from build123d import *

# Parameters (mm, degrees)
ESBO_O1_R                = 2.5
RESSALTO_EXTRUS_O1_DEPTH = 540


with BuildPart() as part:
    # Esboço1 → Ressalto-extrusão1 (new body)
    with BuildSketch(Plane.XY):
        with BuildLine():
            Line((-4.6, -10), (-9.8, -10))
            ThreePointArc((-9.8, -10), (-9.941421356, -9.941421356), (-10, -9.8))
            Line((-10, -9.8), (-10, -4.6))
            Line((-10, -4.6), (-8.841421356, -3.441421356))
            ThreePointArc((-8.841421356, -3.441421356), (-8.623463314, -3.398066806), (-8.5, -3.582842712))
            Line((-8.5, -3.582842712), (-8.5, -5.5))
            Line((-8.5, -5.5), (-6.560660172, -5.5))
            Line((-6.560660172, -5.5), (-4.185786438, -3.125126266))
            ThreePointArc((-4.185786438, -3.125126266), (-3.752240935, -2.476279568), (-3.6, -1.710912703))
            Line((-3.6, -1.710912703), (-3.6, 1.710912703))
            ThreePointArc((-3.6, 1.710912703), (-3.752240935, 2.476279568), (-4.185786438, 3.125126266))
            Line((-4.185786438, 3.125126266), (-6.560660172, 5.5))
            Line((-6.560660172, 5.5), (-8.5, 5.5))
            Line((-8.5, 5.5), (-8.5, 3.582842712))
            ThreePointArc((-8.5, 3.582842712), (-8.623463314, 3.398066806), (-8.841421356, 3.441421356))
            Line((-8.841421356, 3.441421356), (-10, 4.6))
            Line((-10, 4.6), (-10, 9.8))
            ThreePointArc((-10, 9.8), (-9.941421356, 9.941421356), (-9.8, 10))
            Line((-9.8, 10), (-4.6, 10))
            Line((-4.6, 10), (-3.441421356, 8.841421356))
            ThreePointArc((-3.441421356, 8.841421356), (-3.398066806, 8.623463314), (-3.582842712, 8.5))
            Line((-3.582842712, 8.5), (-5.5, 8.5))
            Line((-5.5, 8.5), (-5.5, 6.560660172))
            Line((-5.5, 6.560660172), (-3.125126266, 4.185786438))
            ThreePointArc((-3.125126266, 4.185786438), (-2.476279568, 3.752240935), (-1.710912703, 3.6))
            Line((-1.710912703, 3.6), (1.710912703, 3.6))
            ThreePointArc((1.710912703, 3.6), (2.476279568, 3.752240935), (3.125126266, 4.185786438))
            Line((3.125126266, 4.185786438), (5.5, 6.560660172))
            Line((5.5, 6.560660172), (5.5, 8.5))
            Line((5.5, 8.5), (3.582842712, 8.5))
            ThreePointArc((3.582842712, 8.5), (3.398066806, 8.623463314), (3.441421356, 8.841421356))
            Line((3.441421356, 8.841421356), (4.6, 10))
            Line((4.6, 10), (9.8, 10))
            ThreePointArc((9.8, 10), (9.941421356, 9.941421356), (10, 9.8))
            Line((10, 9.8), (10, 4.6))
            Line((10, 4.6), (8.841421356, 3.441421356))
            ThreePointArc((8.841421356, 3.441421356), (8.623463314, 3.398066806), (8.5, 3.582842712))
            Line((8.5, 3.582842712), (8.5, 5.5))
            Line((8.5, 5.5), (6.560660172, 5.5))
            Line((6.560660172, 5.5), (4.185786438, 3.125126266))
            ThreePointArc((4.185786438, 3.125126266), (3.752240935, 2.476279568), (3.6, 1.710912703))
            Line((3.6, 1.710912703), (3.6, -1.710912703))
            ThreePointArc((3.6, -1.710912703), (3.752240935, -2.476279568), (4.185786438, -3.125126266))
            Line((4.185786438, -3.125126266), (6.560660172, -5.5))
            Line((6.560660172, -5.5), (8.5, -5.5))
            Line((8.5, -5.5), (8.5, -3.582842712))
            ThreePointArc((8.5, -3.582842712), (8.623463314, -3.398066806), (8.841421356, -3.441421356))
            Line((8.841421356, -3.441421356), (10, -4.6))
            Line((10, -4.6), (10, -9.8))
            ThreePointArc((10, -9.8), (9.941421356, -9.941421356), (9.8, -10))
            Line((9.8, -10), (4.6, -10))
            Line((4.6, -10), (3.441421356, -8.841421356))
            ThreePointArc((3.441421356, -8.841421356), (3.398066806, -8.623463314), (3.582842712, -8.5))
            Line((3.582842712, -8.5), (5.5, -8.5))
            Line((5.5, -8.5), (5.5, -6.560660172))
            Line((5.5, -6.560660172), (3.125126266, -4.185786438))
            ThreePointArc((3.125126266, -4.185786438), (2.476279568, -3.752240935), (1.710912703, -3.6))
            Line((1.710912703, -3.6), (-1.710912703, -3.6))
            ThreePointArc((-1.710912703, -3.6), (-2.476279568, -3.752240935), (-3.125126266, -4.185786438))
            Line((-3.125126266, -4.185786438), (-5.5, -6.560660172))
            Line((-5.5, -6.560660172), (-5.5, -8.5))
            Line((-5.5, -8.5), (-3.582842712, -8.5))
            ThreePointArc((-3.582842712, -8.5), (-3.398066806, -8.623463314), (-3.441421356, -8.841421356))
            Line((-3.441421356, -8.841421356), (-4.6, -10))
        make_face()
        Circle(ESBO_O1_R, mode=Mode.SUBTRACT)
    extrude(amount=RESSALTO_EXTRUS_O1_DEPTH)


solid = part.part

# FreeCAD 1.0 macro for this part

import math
import FreeCAD as App
import Part
import Sketcher
from FreeCAD import Vector
Q = App.Units.Quantity

doc = App.newDocument("Part")
body = doc.addObject("PartDesign::Body", "Body")

# Sketch on XY plane
sketch1 = body.newObject("Sketcher::SketchObject", "Sketch")
sketch1.AttachmentSupport = (doc.getObject("XY_Plane"), [""])
sketch1.MapMode = "FlatFace"
sketch1.addGeometry(Part.LineSegment(Vector(-9.8, -10, 0), Vector(-4.6, -10, 0)), False)
sketch1.addGeometry(Part.LineSegment(Vector(-4.6, -10, 0), Vector(-3.44, -8.84, 0)), False)
sketch1.addGeometry(Part.ArcOfCircle(Part.Circle(Vector(-3.58, -8.7, 0), Vector(0, 0, 1), 0.2), math.radians(-45), math.radians(90)), False)
sketch1.addGeometry(Part.LineSegment(Vector(-3.58, -8.5, 0), Vector(-5.5, -8.5, 0)), False)
sketch1.addGeometry(Part.LineSegment(Vector(-5.5, -8.5, 0), Vector(-5.5, -6.56, 0)), False)
sketch1.addGeometry(Part.LineSegment(Vector(-5.5, -6.56, 0), Vector(-3.13, -4.19, 0)), False)
sketch1.addGeometry(Part.ArcOfCircle(Part.Circle(Vector(-1.71, -5.6, 0), Vector(0, 0, 1), 2), math.radians(90), math.radians(135)), False)
sketch1.addGeometry(Part.LineSegment(Vector(-1.71, -3.6, 0), Vector(1.71, -3.6, 0)), False)
sketch1.addGeometry(Part.ArcOfCircle(Part.Circle(Vector(1.71, -5.6, 0), Vector(0, 0, 1), 2), math.radians(45), math.radians(90)), False)
sketch1.addGeometry(Part.LineSegment(Vector(3.13, -4.19, 0), Vector(5.5, -6.56, 0)), False)
sketch1.addGeometry(Part.LineSegment(Vector(5.5, -6.56, 0), Vector(5.5, -8.5, 0)), False)
sketch1.addGeometry(Part.LineSegment(Vector(5.5, -8.5, 0), Vector(3.58, -8.5, 0)), False)
sketch1.addGeometry(Part.ArcOfCircle(Part.Circle(Vector(3.58, -8.7, 0), Vector(0, 0, 1), 0.2), math.radians(90), math.radians(225)), False)
sketch1.addGeometry(Part.LineSegment(Vector(3.44, -8.84, 0), Vector(4.6, -10, 0)), False)
sketch1.addGeometry(Part.LineSegment(Vector(4.6, -10, 0), Vector(9.8, -10, 0)), False)
sketch1.addGeometry(Part.ArcOfCircle(Part.Circle(Vector(9.8, -9.8, 0), Vector(0, 0, 1), 0.2), math.radians(-90), math.radians(0)), False)
sketch1.addGeometry(Part.LineSegment(Vector(10, -9.8, 0), Vector(10, -4.6, 0)), False)
sketch1.addGeometry(Part.LineSegment(Vector(10, -4.6, 0), Vector(8.84, -3.44, 0)), False)
sketch1.addGeometry(Part.ArcOfCircle(Part.Circle(Vector(8.7, -3.58, 0), Vector(0, 0, 1), 0.2), math.radians(45), math.radians(180)), False)
sketch1.addGeometry(Part.LineSegment(Vector(8.5, -3.58, 0), Vector(8.5, -5.5, 0)), False)
sketch1.addGeometry(Part.LineSegment(Vector(8.5, -5.5, 0), Vector(6.56, -5.5, 0)), False)
sketch1.addGeometry(Part.LineSegment(Vector(6.56, -5.5, 0), Vector(4.19, -3.13, 0)), False)
sketch1.addGeometry(Part.ArcOfCircle(Part.Circle(Vector(5.6, -1.71, 0), Vector(0, 0, 1), 2), math.radians(180), math.radians(225)), False)
sketch1.addGeometry(Part.LineSegment(Vector(3.6, -1.71, 0), Vector(3.6, 1.71, 0)), False)
sketch1.addGeometry(Part.ArcOfCircle(Part.Circle(Vector(5.6, 1.71, 0), Vector(0, 0, 1), 2), math.radians(135), math.radians(180)), False)
sketch1.addGeometry(Part.LineSegment(Vector(4.19, 3.13, 0), Vector(6.56, 5.5, 0)), False)
sketch1.addGeometry(Part.LineSegment(Vector(6.56, 5.5, 0), Vector(8.5, 5.5, 0)), False)
sketch1.addGeometry(Part.LineSegment(Vector(8.5, 5.5, 0), Vector(8.5, 3.58, 0)), False)
sketch1.addGeometry(Part.ArcOfCircle(Part.Circle(Vector(8.7, 3.58, 0), Vector(0, 0, 1), 0.2), math.radians(-180), math.radians(-45)), False)
sketch1.addGeometry(Part.LineSegment(Vector(8.84, 3.44, 0), Vector(10, 4.6, 0)), False)
sketch1.addGeometry(Part.LineSegment(Vector(10, 4.6, 0), Vector(10, 9.8, 0)), False)
sketch1.addGeometry(Part.ArcOfCircle(Part.Circle(Vector(9.8, 9.8, 0), Vector(0, 0, 1), 0.2), math.radians(0), math.radians(90)), False)
sketch1.addGeometry(Part.LineSegment(Vector(9.8, 10, 0), Vector(4.6, 10, 0)), False)
sketch1.addGeometry(Part.LineSegment(Vector(4.6, 10, 0), Vector(3.44, 8.84, 0)), False)
sketch1.addGeometry(Part.ArcOfCircle(Part.Circle(Vector(3.58, 8.7, 0), Vector(0, 0, 1), 0.2), math.radians(135), math.radians(270)), False)
sketch1.addGeometry(Part.LineSegment(Vector(3.58, 8.5, 0), Vector(5.5, 8.5, 0)), False)
sketch1.addGeometry(Part.LineSegment(Vector(5.5, 8.5, 0), Vector(5.5, 6.56, 0)), False)
sketch1.addGeometry(Part.LineSegment(Vector(5.5, 6.56, 0), Vector(3.13, 4.19, 0)), False)
sketch1.addGeometry(Part.ArcOfCircle(Part.Circle(Vector(1.71, 5.6, 0), Vector(0, 0, 1), 2), math.radians(-90), math.radians(-45)), False)
sketch1.addGeometry(Part.LineSegment(Vector(1.71, 3.6, 0), Vector(-1.71, 3.6, 0)), False)
sketch1.addGeometry(Part.ArcOfCircle(Part.Circle(Vector(-1.71, 5.6, 0), Vector(0, 0, 1), 2), math.radians(-135), math.radians(-90)), False)
sketch1.addGeometry(Part.LineSegment(Vector(-3.13, 4.19, 0), Vector(-5.5, 6.56, 0)), False)
sketch1.addGeometry(Part.LineSegment(Vector(-5.5, 6.56, 0), Vector(-5.5, 8.5, 0)), False)
sketch1.addGeometry(Part.LineSegment(Vector(-5.5, 8.5, 0), Vector(-3.58, 8.5, 0)), False)
sketch1.addGeometry(Part.ArcOfCircle(Part.Circle(Vector(-3.58, 8.7, 0), Vector(0, 0, 1), 0.2), math.radians(-90), math.radians(45)), False)
sketch1.addGeometry(Part.LineSegment(Vector(-3.44, 8.84, 0), Vector(-4.6, 10, 0)), False)
sketch1.addGeometry(Part.LineSegment(Vector(-4.6, 10, 0), Vector(-9.8, 10, 0)), False)
sketch1.addGeometry(Part.ArcOfCircle(Part.Circle(Vector(-9.8, 9.8, 0), Vector(0, 0, 1), 0.2), math.radians(90), math.radians(180)), False)
sketch1.addGeometry(Part.LineSegment(Vector(-10, 9.8, 0), Vector(-10, 4.6, 0)), False)
sketch1.addGeometry(Part.LineSegment(Vector(-10, 4.6, 0), Vector(-8.84, 3.44, 0)), False)
sketch1.addGeometry(Part.ArcOfCircle(Part.Circle(Vector(-8.7, 3.58, 0), Vector(0, 0, 1), 0.2), math.radians(-135), math.radians(0)), False)
sketch1.addGeometry(Part.LineSegment(Vector(-8.5, 3.58, 0), Vector(-8.5, 5.5, 0)), False)
sketch1.addGeometry(Part.LineSegment(Vector(-8.5, 5.5, 0), Vector(-6.56, 5.5, 0)), False)
sketch1.addGeometry(Part.LineSegment(Vector(-6.56, 5.5, 0), Vector(-4.19, 3.13, 0)), False)
sketch1.addGeometry(Part.ArcOfCircle(Part.Circle(Vector(-5.6, 1.71, 0), Vector(0, 0, 1), 2), math.radians(0), math.radians(45)), False)
sketch1.addGeometry(Part.LineSegment(Vector(-3.6, 1.71, 0), Vector(-3.6, -1.71, 0)), False)
sketch1.addGeometry(Part.ArcOfCircle(Part.Circle(Vector(-5.6, -1.71, 0), Vector(0, 0, 1), 2), math.radians(-45), math.radians(0)), False)
sketch1.addGeometry(Part.LineSegment(Vector(-4.19, -3.13, 0), Vector(-6.56, -5.5, 0)), False)
sketch1.addGeometry(Part.LineSegment(Vector(-6.56, -5.5, 0), Vector(-8.5, -5.5, 0)), False)
sketch1.addGeometry(Part.LineSegment(Vector(-8.5, -5.5, 0), Vector(-8.5, -3.58, 0)), False)
sketch1.addGeometry(Part.ArcOfCircle(Part.Circle(Vector(-8.7, -3.58, 0), Vector(0, 0, 1), 0.2), math.radians(0), math.radians(135)), False)
sketch1.addGeometry(Part.LineSegment(Vector(-8.84, -3.44, 0), Vector(-10, -4.6, 0)), False)
sketch1.addGeometry(Part.LineSegment(Vector(-10, -4.6, 0), Vector(-10, -9.8, 0)), False)
sketch1.addGeometry(Part.ArcOfCircle(Part.Circle(Vector(-9.8, -9.8, 0), Vector(0, 0, 1), 0.2), math.radians(-180), math.radians(-90)), False)
sketch1.addGeometry(Part.Circle(Vector(0, 0, 0), Vector(0, 0, 1), 2.5), False)
sketch1.addConstraint(Sketcher.Constraint("Coincident", 0, 2, 1, 1))
sketch1.addConstraint(Sketcher.Constraint("Tangent", 1, 2, 2, 1))
sketch1.addConstraint(Sketcher.Constraint("Tangent", 2, 2, 3, 1))
sketch1.addConstraint(Sketcher.Constraint("Coincident", 3, 2, 4, 1))
sketch1.addConstraint(Sketcher.Constraint("Coincident", 4, 2, 5, 1))
sketch1.addConstraint(Sketcher.Constraint("Tangent", 5, 2, 6, 2))
sketch1.addConstraint(Sketcher.Constraint("Tangent", 6, 1, 7, 1))
sketch1.addConstraint(Sketcher.Constraint("Tangent", 7, 2, 8, 2))
sketch1.addConstraint(Sketcher.Constraint("Tangent", 8, 1, 9, 1))
sketch1.addConstraint(Sketcher.Constraint("Coincident", 9, 2, 10, 1))
sketch1.addConstraint(Sketcher.Constraint("Coincident", 10, 2, 11, 1))
sketch1.addConstraint(Sketcher.Constraint("Tangent", 11, 2, 12, 1))
sketch1.addConstraint(Sketcher.Constraint("Tangent", 12, 2, 13, 1))
sketch1.addConstraint(Sketcher.Constraint("Coincident", 13, 2, 14, 1))
sketch1.addConstraint(Sketcher.Constraint("Tangent", 14, 2, 15, 1))
sketch1.addConstraint(Sketcher.Constraint("Tangent", 15, 2, 16, 1))
sketch1.addConstraint(Sketcher.Constraint("Coincident", 16, 2, 17, 1))
sketch1.addConstraint(Sketcher.Constraint("Tangent", 17, 2, 18, 1))
sketch1.addConstraint(Sketcher.Constraint("Tangent", 18, 2, 19, 1))
sketch1.addConstraint(Sketcher.Constraint("Coincident", 19, 2, 20, 1))
sketch1.addConstraint(Sketcher.Constraint("Coincident", 20, 2, 21, 1))
sketch1.addConstraint(Sketcher.Constraint("Tangent", 21, 2, 22, 2))
sketch1.addConstraint(Sketcher.Constraint("Tangent", 22, 1, 23, 1))
sketch1.addConstraint(Sketcher.Constraint("Tangent", 23, 2, 24, 2))
sketch1.addConstraint(Sketcher.Constraint("Tangent", 24, 1, 25, 1))
sketch1.addConstraint(Sketcher.Constraint("Coincident", 25, 2, 26, 1))
sketch1.addConstraint(Sketcher.Constraint("Coincident", 26, 2, 27, 1))
sketch1.addConstraint(Sketcher.Constraint("Tangent", 27, 2, 28, 1))
sketch1.addConstraint(Sketcher.Constraint("Tangent", 28, 2, 29, 1))
sketch1.addConstraint(Sketcher.Constraint("Coincident", 29, 2, 30, 1))
sketch1.addConstraint(Sketcher.Constraint("Tangent", 30, 2, 31, 1))
sketch1.addConstraint(Sketcher.Constraint("Tangent", 31, 2, 32, 1))
sketch1.addConstraint(Sketcher.Constraint("Coincident", 32, 2, 33, 1))
sketch1.addConstraint(Sketcher.Constraint("Tangent", 33, 2, 34, 1))
sketch1.addConstraint(Sketcher.Constraint("Tangent", 34, 2, 35, 1))
sketch1.addConstraint(Sketcher.Constraint("Coincident", 35, 2, 36, 1))
sketch1.addConstraint(Sketcher.Constraint("Coincident", 36, 2, 37, 1))
sketch1.addConstraint(Sketcher.Constraint("Tangent", 37, 2, 38, 2))
sketch1.addConstraint(Sketcher.Constraint("Tangent", 38, 1, 39, 1))
sketch1.addConstraint(Sketcher.Constraint("Tangent", 39, 2, 40, 2))
sketch1.addConstraint(Sketcher.Constraint("Tangent", 40, 1, 41, 1))
sketch1.addConstraint(Sketcher.Constraint("Coincident", 41, 2, 42, 1))
sketch1.addConstraint(Sketcher.Constraint("Coincident", 42, 2, 43, 1))
sketch1.addConstraint(Sketcher.Constraint("Tangent", 43, 2, 44, 1))
sketch1.addConstraint(Sketcher.Constraint("Tangent", 44, 2, 45, 1))
sketch1.addConstraint(Sketcher.Constraint("Coincident", 45, 2, 46, 1))
sketch1.addConstraint(Sketcher.Constraint("Tangent", 46, 2, 47, 1))
sketch1.addConstraint(Sketcher.Constraint("Tangent", 47, 2, 48, 1))
sketch1.addConstraint(Sketcher.Constraint("Coincident", 48, 2, 49, 1))
sketch1.addConstraint(Sketcher.Constraint("Tangent", 49, 2, 50, 1))
sketch1.addConstraint(Sketcher.Constraint("Tangent", 50, 2, 51, 1))
sketch1.addConstraint(Sketcher.Constraint("Coincident", 51, 2, 52, 1))
sketch1.addConstraint(Sketcher.Constraint("Coincident", 52, 2, 53, 1))
sketch1.addConstraint(Sketcher.Constraint("Tangent", 53, 2, 54, 2))
sketch1.addConstraint(Sketcher.Constraint("Tangent", 54, 1, 55, 1))
sketch1.addConstraint(Sketcher.Constraint("Tangent", 55, 2, 56, 2))
sketch1.addConstraint(Sketcher.Constraint("Tangent", 56, 1, 57, 1))
sketch1.addConstraint(Sketcher.Constraint("Coincident", 57, 2, 58, 1))
sketch1.addConstraint(Sketcher.Constraint("Coincident", 58, 2, 59, 1))
sketch1.addConstraint(Sketcher.Constraint("Tangent", 59, 2, 60, 1))
sketch1.addConstraint(Sketcher.Constraint("Tangent", 60, 2, 61, 1))
sketch1.addConstraint(Sketcher.Constraint("Coincident", 61, 2, 62, 1))
sketch1.addConstraint(Sketcher.Constraint("Tangent", 62, 2, 63, 1))
sketch1.addConstraint(Sketcher.Constraint("Tangent", 63, 2, 0, 1))
sketch1.addConstraint(Sketcher.Constraint("Horizontal", 0))
sketch1.addConstraint(Sketcher.Constraint("Horizontal", 3))
sketch1.addConstraint(Sketcher.Constraint("Vertical", 4))
sketch1.addConstraint(Sketcher.Constraint("Horizontal", 7))
sketch1.addConstraint(Sketcher.Constraint("Vertical", 10))
sketch1.addConstraint(Sketcher.Constraint("Horizontal", 11))
sketch1.addConstraint(Sketcher.Constraint("Horizontal", 14))
sketch1.addConstraint(Sketcher.Constraint("Vertical", 16))
sketch1.addConstraint(Sketcher.Constraint("Vertical", 19))
sketch1.addConstraint(Sketcher.Constraint("Horizontal", 20))
sketch1.addConstraint(Sketcher.Constraint("Vertical", 23))
sketch1.addConstraint(Sketcher.Constraint("Horizontal", 26))
sketch1.addConstraint(Sketcher.Constraint("Vertical", 27))
sketch1.addConstraint(Sketcher.Constraint("Vertical", 30))
sketch1.addConstraint(Sketcher.Constraint("Horizontal", 32))
sketch1.addConstraint(Sketcher.Constraint("Horizontal", 35))
sketch1.addConstraint(Sketcher.Constraint("Vertical", 36))
sketch1.addConstraint(Sketcher.Constraint("Horizontal", 39))
sketch1.addConstraint(Sketcher.Constraint("Vertical", 42))
sketch1.addConstraint(Sketcher.Constraint("Horizontal", 43))
sketch1.addConstraint(Sketcher.Constraint("Horizontal", 46))
sketch1.addConstraint(Sketcher.Constraint("Vertical", 48))
sketch1.addConstraint(Sketcher.Constraint("Vertical", 51))
sketch1.addConstraint(Sketcher.Constraint("Horizontal", 52))
sketch1.addConstraint(Sketcher.Constraint("Vertical", 55))
sketch1.addConstraint(Sketcher.Constraint("Horizontal", 58))
sketch1.addConstraint(Sketcher.Constraint("Vertical", 59))
sketch1.addConstraint(Sketcher.Constraint("Vertical", 62))
sketch1.addConstraint(Sketcher.Constraint("Coincident", 64, 3, -1, 1))
sketch1.addConstraint(Sketcher.Constraint("Equal", 6, 8))
sketch1.addConstraint(Sketcher.Constraint("Equal", 2, 12))
sketch1.addConstraint(Sketcher.Constraint("Equal", 12, 15))
sketch1.addConstraint(Sketcher.Constraint("Equal", 15, 18))
sketch1.addConstraint(Sketcher.Constraint("Equal", 8, 22))
sketch1.addConstraint(Sketcher.Constraint("Equal", 22, 24))
sketch1.addConstraint(Sketcher.Constraint("Equal", 18, 28))
sketch1.addConstraint(Sketcher.Constraint("Equal", 28, 31))
sketch1.addConstraint(Sketcher.Constraint("Equal", 31, 34))
sketch1.addConstraint(Sketcher.Constraint("Equal", 24, 38))
sketch1.addConstraint(Sketcher.Constraint("Equal", 38, 40))
sketch1.addConstraint(Sketcher.Constraint("Equal", 34, 44))
sketch1.addConstraint(Sketcher.Constraint("Equal", 44, 47))
sketch1.addConstraint(Sketcher.Constraint("Equal", 47, 50))
sketch1.addConstraint(Sketcher.Constraint("Equal", 40, 54))
sketch1.addConstraint(Sketcher.Constraint("Equal", 54, 56))
sketch1.addConstraint(Sketcher.Constraint("Equal", 50, 60))
sketch1.addConstraint(Sketcher.Constraint("Equal", 60, 63))
sketch1.addConstraint(Sketcher.Constraint("Symmetric", 2, 3, 34, 3, -1, 1))
sketch1.addConstraint(Sketcher.Constraint("Symmetric", 6, 3, 38, 3, -1, 1))
sketch1.addConstraint(Sketcher.Constraint("Symmetric", 12, 3, 44, 3, -1, 1))
sketch1.addConstraint(Sketcher.Constraint("Symmetric", 15, 3, 47, 3, -1, 1))
sketch1.addConstraint(Sketcher.Constraint("Symmetric", 18, 3, 50, 3, -1, 1))
sketch1.addConstraint(Sketcher.Constraint("Symmetric", 22, 3, 54, 3, -1, 1))
sketch1.addConstraint(Sketcher.Constraint("Symmetric", 28, 3, 60, 3, -1, 1))
sketch1.addConstraint(Sketcher.Constraint("Symmetric", 31, 3, 63, 3, -1, 1))
sketch1.addConstraint(Sketcher.Constraint("Symmetric", 4, 2, 36, 2, -1, 1))
sketch1.addConstraint(Sketcher.Constraint("Symmetric", 8, 1, 40, 1, -1, 1))
sketch1.addConstraint(Sketcher.Constraint("Symmetric", 20, 2, 52, 2, -1, 1))
sketch1.addConstraint(Sketcher.Constraint("Symmetric", 24, 1, 56, 1, -1, 1))
sketch1.addConstraint(Sketcher.Constraint("Symmetric", 2, 3, 12, 3, -2))
sketch1.addConstraint(Sketcher.Constraint("Symmetric", 31, 3, 47, 3, -2))
sketch1.addConstraint(Sketcher.Constraint("Symmetric", 28, 3, 50, 3, -2))
sketch1.addConstraint(Sketcher.Constraint("Symmetric", 5, 2, 8, 1, -2))
sketch1.addConstraint(Sketcher.Constraint("Symmetric", 25, 2, 52, 2, -2))
sketch1.addConstraint(Sketcher.Constraint("Parallel", 1, 5))
sketch1.addConstraint(Sketcher.Constraint("Perpendicular", 5, 9))
sketch1.addConstraint(Sketcher.Constraint("Parallel", 9, 13))
sketch1.addConstraint(Sketcher.Constraint("Parallel", 13, 17))
sketch1.addConstraint(Sketcher.Constraint("Parallel", 17, 21))
sketch1.addConstraint(Sketcher.Constraint("Perpendicular", 21, 25))
sketch1.addConstraint(Sketcher.Constraint("Parallel", 25, 29))
sketch1.addConstraint(Sketcher.Constraint("Parallel", 29, 33))
sketch1.addConstraint(Sketcher.Constraint("Parallel", 41, 45))
sketch1.addConstraint(Sketcher.Constraint("Parallel", 45, 49))
sketch1.addConstraint(Sketcher.Constraint("Parallel", 57, 61))
sketch1.addConstraint(Sketcher.Constraint("Horizontal", 4, 2, 9, 2))
sketch1.addConstraint(Sketcher.Constraint("Horizontal", 36, 2, 41, 2))
sketch1.addConstraint(Sketcher.Constraint("Horizontal", 20, 2, 57, 2))
sketch1.addConstraint(Sketcher.Constraint("Equal", 58, 4))
sketch1.addConstraint(Sketcher.Constraint("Equal", 46, 16))
sketch1.addConstraint(Sketcher.Constraint("Equal", 43, 19))
sketch1.addConstraint(Sketcher.Constraint("Equal", 39, 23))
sketch1.addConstraint(Sketcher.Constraint("Equal", 13, 17))
sketch1.addConstraint(Sketcher.Constraint("Equal", 9, 21))
sketch1.addConstraint(Sketcher.Constraint("Diameter", 64, Q("5 mm")))
sketch1.addConstraint(Sketcher.Constraint("Radius", 6, Q("2 mm")))
sketch1.addConstraint(Sketcher.Constraint("Radius", 2, Q("0.2 mm")))
sketch1.addConstraint(Sketcher.Constraint("DistanceX", 0, 1, 0, 2, Q("5.2 mm")))
sketch1.addConstraint(Sketcher.Constraint("DistanceY", 0, 2, -1, 1, Q("10 mm")))
sketch1.addConstraint(Sketcher.Constraint("DistanceY", 2, 3, -1, 1, Q("8.7 mm")))
sketch1.addConstraint(Sketcher.Constraint("DistanceY", 6, 3, -1, 1, Q("5.6 mm")))
sketch1.addConstraint(Sketcher.Constraint("DistanceX", 3, 2, -1, 1, Q("5.5 mm")))
sketch1.addConstraint(Sketcher.Constraint("DistanceX", 20, 2, 20, 1, Q("1.93934 mm")))
pad1 = body.newObject("PartDesign::Pad", "Pad")
pad1.Profile = sketch1
pad1.Length = 540

doc.recompute()
